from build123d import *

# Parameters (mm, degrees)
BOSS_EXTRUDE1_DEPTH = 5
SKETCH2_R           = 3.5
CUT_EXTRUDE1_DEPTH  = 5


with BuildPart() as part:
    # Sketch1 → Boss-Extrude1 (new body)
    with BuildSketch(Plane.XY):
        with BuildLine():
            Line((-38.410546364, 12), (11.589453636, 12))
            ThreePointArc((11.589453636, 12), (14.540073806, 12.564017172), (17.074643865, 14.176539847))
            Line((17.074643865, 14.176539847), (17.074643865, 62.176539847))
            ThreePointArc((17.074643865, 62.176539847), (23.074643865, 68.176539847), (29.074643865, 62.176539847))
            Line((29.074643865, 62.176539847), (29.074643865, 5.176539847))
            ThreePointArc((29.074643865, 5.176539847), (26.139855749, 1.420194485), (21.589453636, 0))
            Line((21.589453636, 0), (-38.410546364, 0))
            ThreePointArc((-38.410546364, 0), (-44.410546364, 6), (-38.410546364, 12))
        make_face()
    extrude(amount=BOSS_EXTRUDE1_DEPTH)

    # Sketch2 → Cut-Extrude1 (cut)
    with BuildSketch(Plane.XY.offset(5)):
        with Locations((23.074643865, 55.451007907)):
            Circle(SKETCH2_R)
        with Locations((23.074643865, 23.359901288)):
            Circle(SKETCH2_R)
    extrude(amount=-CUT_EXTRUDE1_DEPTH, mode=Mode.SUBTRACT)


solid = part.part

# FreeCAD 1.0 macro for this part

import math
import FreeCAD as App
import Part
import Sketcher
from FreeCAD import Vector

doc = App.newDocument("Part")
body = doc.addObject("PartDesign::Body", "Body")

# Sketch on XY plane
sketch1 = body.newObject("Sketcher::SketchObject", "Sketch")
sketch1.AttachmentSupport = (doc.getObject("XY_Plane"), [""])
sketch1.MapMode = "FlatFace"
sketch1.addGeometry([
    Part.LineSegment(Vector(12, 12, 0), Vector(-38, 12, 0)),  # 0
    Part.ArcOfCircle(Part.Circle(Vector(-38, 6, 0), Vector(0, 0, 1), 6), math.radians(90), math.radians(270)),  # 1
    Part.LineSegment(Vector(-38, 0, 0), Vector(22, 0, 0)),  # 2
    Part.ArcOfCircle(Part.Circle(Vector(22, 8, 0), Vector(0, 0, 1), 8), math.radians(-90), math.radians(-21)),  # 3
    Part.LineSegment(Vector(29, 5, 0), Vector(29, 62, 0)),  # 4
    Part.ArcOfCircle(Part.Circle(Vector(23, 62, 0), Vector(0, 0, 1), 6), math.radians(0), math.radians(180)),  # 5
    Part.LineSegment(Vector(17, 62, 0), Vector(17, 14, 0)),  # 6
    Part.ArcOfCircle(Part.Circle(Vector(12, 20, 0), Vector(0, 0, 1), 8), math.radians(-90), math.radians(-47)),  # 7
], False)
sketch1.addConstraint([
    Sketcher.Constraint("Tangent", 0, 2, 1, 1),
    Sketcher.Constraint("Tangent", 1, 2, 2, 1),
    Sketcher.Constraint("Tangent", 2, 2, 3, 1),
    Sketcher.Constraint("Coincident", 3, 2, 4, 1),
    Sketcher.Constraint("Tangent", 4, 2, 5, 1),
    Sketcher.Constraint("Tangent", 5, 2, 6, 1),
    Sketcher.Constraint("Coincident", 6, 2, 7, 2),
    Sketcher.Constraint("Tangent", 7, 1, 0, 1),
    Sketcher.Constraint("Horizontal", 0),
    Sketcher.Constraint("Horizontal", 2),
    Sketcher.Constraint("Vertical", 4),
    Sketcher.Constraint("Vertical", 6),
    Sketcher.Constraint("Equal", 1, 5),
    Sketcher.Constraint("Equal", 3, 7),
    Sketcher.Constraint("PointOnObject", 1, 2, -1),
    Sketcher.Constraint("Radius", 1, 6.0),
    Sketcher.Constraint("Radius", 3, 8.0),
    Sketcher.Constraint("DistanceX", 0, 2, 0, 1, 50.0),
    Sketcher.Constraint("DistanceX", 2, 1, 2, 2, 60.0),
    Sketcher.Constraint("DistanceY", 4, 1, 4, 2, 57.0),
    Sketcher.Constraint("DistanceY", 6, 2, 6, 1, 48.0),
    Sketcher.Constraint("DistanceX", 1, 3, -1, 1, 38.410546),
])
pad1 = body.newObject("PartDesign::Pad", "Pad")
pad1.Profile = sketch1
pad1.Length = 5

# Sketch on XY plane
sketch2 = body.newObject("Sketcher::SketchObject", "Sketch001")
sketch2.AttachmentSupport = (doc.getObject("XY_Plane"), [""])
sketch2.MapMode = "FlatFace"
sketch2.AttachmentOffset = App.Placement(Vector(0, 0, 5), App.Rotation())
sketch2.addGeometry([
    Part.Circle(Vector(23.1, 55.5, 0), Vector(0, 0, 1), 3.5),
    Part.Circle(Vector(23.1, 23.4, 0), Vector(0, 0, 1), 3.5),
], False)
sketch2.addConstraint([
    Sketcher.Constraint("Equal", 0, 1),
    Sketcher.Constraint("Vertical", 0, 3, 1, 3),
    Sketcher.Constraint("Diameter", 0, 7.0),
    Sketcher.Constraint("DistanceY", -1, 1, 1, 3, 23.359901),
    Sketcher.Constraint("DistanceX", -1, 1, 0, 3, 23.074644),
    Sketcher.Constraint("DistanceY", -1, 1, 0, 3, 55.451008),
])
pocket1 = body.newObject("PartDesign::Pocket", "Pocket")
pocket1.Profile = sketch2
pocket1.Length = 5

doc.recompute()
